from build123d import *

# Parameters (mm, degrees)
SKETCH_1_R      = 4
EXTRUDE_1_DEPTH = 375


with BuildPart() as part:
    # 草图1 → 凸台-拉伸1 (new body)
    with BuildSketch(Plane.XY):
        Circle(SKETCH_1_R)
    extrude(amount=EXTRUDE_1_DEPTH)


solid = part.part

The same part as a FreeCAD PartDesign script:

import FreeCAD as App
import Part
import Sketcher

V = App.Vector
Q = App.Units.Quantity

doc = App.newDocument("Part")
body = doc.addObject("PartDesign::Body", "Body")

# Sketch on XY plane
sketch1 = body.newObject("Sketcher::SketchObject", "Sketch")
sketch1.AttachmentSupport = (doc.getObject("XY_Plane"), [""])
sketch1.MapMode = "FlatFace"
sketch1.addGeometry(Part.Circle(V(0, 0, 0), V(0, 0, 1), 4), False)
sketch1.addConstraint(Sketcher.Constraint("Coincident", 0, 3, -1, 1))
sketch1.addConstraint(Sketcher.Constraint("Diameter", 0, Q("8 mm")))
pad1 = body.newObject("PartDesign::Pad", "Pad")
pad1.Profile = sketch1
pad1.Length = 375

doc.recompute()
